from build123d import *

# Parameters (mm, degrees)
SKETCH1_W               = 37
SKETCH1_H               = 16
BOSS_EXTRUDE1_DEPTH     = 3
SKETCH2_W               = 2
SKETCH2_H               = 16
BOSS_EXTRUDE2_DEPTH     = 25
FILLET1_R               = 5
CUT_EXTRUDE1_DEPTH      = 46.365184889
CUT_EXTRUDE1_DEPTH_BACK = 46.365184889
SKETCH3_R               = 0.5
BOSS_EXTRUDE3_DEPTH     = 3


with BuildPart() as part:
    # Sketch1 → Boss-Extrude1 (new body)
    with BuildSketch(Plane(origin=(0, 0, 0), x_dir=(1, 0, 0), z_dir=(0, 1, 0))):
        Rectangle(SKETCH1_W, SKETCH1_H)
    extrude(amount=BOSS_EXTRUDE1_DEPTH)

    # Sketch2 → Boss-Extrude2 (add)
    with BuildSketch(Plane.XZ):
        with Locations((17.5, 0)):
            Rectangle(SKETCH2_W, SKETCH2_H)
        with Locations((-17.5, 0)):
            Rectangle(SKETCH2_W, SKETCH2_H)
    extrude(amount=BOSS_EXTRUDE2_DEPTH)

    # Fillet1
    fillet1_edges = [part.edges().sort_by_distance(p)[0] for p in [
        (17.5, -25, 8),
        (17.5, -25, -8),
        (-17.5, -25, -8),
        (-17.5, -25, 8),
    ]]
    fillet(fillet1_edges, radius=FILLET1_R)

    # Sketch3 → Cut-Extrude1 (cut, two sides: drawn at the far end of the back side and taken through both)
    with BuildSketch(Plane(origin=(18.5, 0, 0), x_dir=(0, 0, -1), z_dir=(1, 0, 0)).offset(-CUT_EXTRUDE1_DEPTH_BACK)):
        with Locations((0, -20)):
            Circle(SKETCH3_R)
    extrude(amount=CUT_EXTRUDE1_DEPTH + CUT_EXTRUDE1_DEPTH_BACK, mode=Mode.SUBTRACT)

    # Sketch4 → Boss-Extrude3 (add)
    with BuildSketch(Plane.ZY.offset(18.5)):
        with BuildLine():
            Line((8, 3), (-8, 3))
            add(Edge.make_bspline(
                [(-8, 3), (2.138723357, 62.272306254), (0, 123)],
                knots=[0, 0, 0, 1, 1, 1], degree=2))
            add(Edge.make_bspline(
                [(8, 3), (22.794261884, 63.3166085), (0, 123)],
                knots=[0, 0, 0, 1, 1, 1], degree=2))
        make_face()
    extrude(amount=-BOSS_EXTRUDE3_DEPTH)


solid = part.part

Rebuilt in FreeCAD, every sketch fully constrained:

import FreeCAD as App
import Part
import Sketcher
from FreeCAD import Vector
Q = App.Units.Quantity


def edges_at(feature, points):
    """Names of the edges that pass closest to the given points."""
    edges = feature.Shape.Edges
    near = lambda p: min(range(len(edges)), key=lambda i: edges[i].distToShape(Part.Vertex(*p))[0])
    return sorted({f"Edge{near(p) + 1}" for p in points})

doc = App.newDocument("Part")
params = doc.addObject("Spreadsheet::Sheet", "Params")
for row, (alias, value) in enumerate([
    ("sketch1_width", "37 mm"),
    ("sketch1_height", "16 mm"),
    ("pad1_length", "3 mm"),
    ("sketch2_width", "2 mm"),
    ("sketch2_height", "16 mm"),
    ("pad2_length", "25 mm"),
    ("fillet_radius", "5 mm"),
    ("sketch3_diameter", "1 mm"),
    ("pad3_length", "3 mm"),
], start=1):
    params.set(f"A{row}", alias)
    params.set(f"B{row}", "=" + value)
    params.setAlias(f"B{row}", alias)

body = doc.addObject("PartDesign::Body", "Body")

sketch1 = body.newObject("Sketcher::SketchObject", "Sketch")
sketch1.AttachmentSupport = (doc.getObject("XZ_Plane"), [""])
sketch1.MapMode = "FlatFace"
sketch1.addGeometry(Part.LineSegment(Vector(-18, -8, 0), Vector(-18, 8, 0)), False)
sketch1.addGeometry(Part.LineSegment(Vector(-18, 8, 0), Vector(18, 8, 0)), False)
sketch1.addGeometry(Part.LineSegment(Vector(18, 8, 0), Vector(18, -8, 0)), False)
sketch1.addGeometry(Part.LineSegment(Vector(18, -8, 0), Vector(-18, -8, 0)), False)
sketch1.addConstraint(Sketcher.Constraint("Coincident", 0, 2, 1, 1))
sketch1.addConstraint(Sketcher.Constraint("Coincident", 1, 2, 2, 1))
sketch1.addConstraint(Sketcher.Constraint("Coincident", 2, 2, 3, 1))
sketch1.addConstraint(Sketcher.Constraint("Coincident", 3, 2, 0, 1))
sketch1.addConstraint(Sketcher.Constraint("Vertical", 0))
sketch1.addConstraint(Sketcher.Constraint("Horizontal", 1))
sketch1.addConstraint(Sketcher.Constraint("Vertical", 2))
sketch1.addConstraint(Sketcher.Constraint("Horizontal", 3))
sketch1.addConstraint(Sketcher.Constraint("Symmetric", 0, 2, 2, 2, -1, 1))
sketch1.addConstraint(Sketcher.Constraint("DistanceX", 1, 1, 1, 2, Q("37 mm")))
sketch1.addConstraint(Sketcher.Constraint("DistanceY", 0, 1, 0, 2, Q("16 mm")))
sketch1.setExpression("Constraints[9]", "Params.sketch1_width")
sketch1.setExpression("Constraints[10]", "Params.sketch1_height")
pad1 = body.newObject("PartDesign::Pad", "Pad")
pad1.Profile = sketch1
pad1.setExpression("Length", "Params.pad1_length")
pad1.Reversed = True

sketch2 = body.newObject("Sketcher::SketchObject", "Sketch001")
sketch2.AttachmentSupport = (doc.getObject("XZ_Plane"), [""])
sketch2.MapMode = "FlatFace"
sketch2.addGeometry(Part.LineSegment(Vector(16.5, 8, 0), Vector(16.5, -8, 0)), False)
sketch2.addGeometry(Part.LineSegment(Vector(16.5, -8, 0), Vector(18.5, -8, 0)), False)
sketch2.addGeometry(Part.LineSegment(Vector(18.5, -8, 0), Vector(18.5, 8, 0)), False)
sketch2.addGeometry(Part.LineSegment(Vector(18.5, 8, 0), Vector(16.5, 8, 0)), False)
sketch2.addGeometry(Part.LineSegment(Vector(-18.5, 8, 0), Vector(-18.5, -8, 0)), False)
sketch2.addGeometry(Part.LineSegment(Vector(-18.5, -8, 0), Vector(-16.5, -8, 0)), False)
sketch2.addGeometry(Part.LineSegment(Vector(-16.5, -8, 0), Vector(-16.5, 8, 0)), False)
sketch2.addGeometry(Part.LineSegment(Vector(-16.5, 8, 0), Vector(-18.5, 8, 0)), False)
sketch2.addConstraint(Sketcher.Constraint("Coincident", 0, 2, 1, 1))
sketch2.addConstraint(Sketcher.Constraint("Coincident", 1, 2, 2, 1))
sketch2.addConstraint(Sketcher.Constraint("Coincident", 2, 2, 3, 1))
sketch2.addConstraint(Sketcher.Constraint("Coincident", 3, 2, 0, 1))
sketch2.addConstraint(Sketcher.Constraint("Coincident", 4, 2, 5, 1))
sketch2.addConstraint(Sketcher.Constraint("Coincident", 5, 2, 6, 1))
sketch2.addConstraint(Sketcher.Constraint("Coincident", 6, 2, 7, 1))
sketch2.addConstraint(Sketcher.Constraint("Coincident", 7, 2, 4, 1))
sketch2.addConstraint(Sketcher.Constraint("Vertical", 0))
sketch2.addConstraint(Sketcher.Constraint("Horizontal", 1))
sketch2.addConstraint(Sketcher.Constraint("Vertical", 2))
sketch2.addConstraint(Sketcher.Constraint("Horizontal", 3))
sketch2.addConstraint(Sketcher.Constraint("Vertical", 4))
sketch2.addConstraint(Sketcher.Constraint("Horizontal", 5))
sketch2.addConstraint(Sketcher.Constraint("Vertical", 6))
sketch2.addConstraint(Sketcher.Constraint("Horizontal", 7))
sketch2.addConstraint(Sketcher.Constraint("Symmetric", 2, 2, 4, 2, -1, 1))
sketch2.addConstraint(Sketcher.Constraint("Symmetric", 0, 2, 6, 2, -1, 1))
sketch2.addConstraint(Sketcher.Constraint("Horizontal", 1, 2, 4, 2))
sketch2.addConstraint(Sketcher.Constraint("DistanceX", 1, 1, 1, 2, Q("2 mm")))
sketch2.addConstraint(Sketcher.Constraint("DistanceY", 0, 2, 0, 1, Q("16 mm")))
sketch2.addConstraint(Sketcher.Constraint("DistanceX", 4, 2, 0, 2, Q("35 mm")))
sketch2.setExpression("Constraints[19]", "Params.sketch2_width")
sketch2.setExpression("Constraints[20]", "Params.sketch2_height")
pad2 = body.newObject("PartDesign::Pad", "Pad001")
pad2.Profile = sketch2
pad2.setExpression("Length", "Params.pad2_length")
doc.recompute()

fillet = body.newObject("PartDesign::Fillet", "Fillet")
fillet.Base = (pad2, edges_at(pad2, [
    (17.5, -25, 8),
    (17.5, -25, -8),
    (-17.5, -25, -8),
    (-17.5, -25, 8),
]))
fillet.setExpression("Radius", "Params.fillet_radius")

sketch3 = body.newObject("Sketcher::SketchObject", "Sketch002")
sketch3.AttachmentSupport = (doc.getObject("YZ_Plane"), [""])
sketch3.MapMode = "FlatFace"
sketch3.AttachmentOffset = App.Placement(Vector(0, 0, 18.5), App.Rotation())
sketch3.addGeometry(Part.Circle(Vector(-20, 0, 0), Vector(0, 0, 1), 0.5), False)
sketch3.addConstraint(Sketcher.Constraint("PointOnObject", 0, 3, -1))
sketch3.addConstraint(Sketcher.Constraint("Diameter", 0, Q("1 mm")))
sketch3.addConstraint(Sketcher.Constraint("DistanceX", 0, 3, -1, 1, Q("20 mm")))
sketch3.setExpression("Constraints[1]", "Params.sketch3_diameter")
pocket1 = body.newObject("PartDesign::Pocket", "Pocket")
pocket1.Profile = sketch3
pocket1.Type = "ThroughAll"
pocket1.Midplane = True

sketch4 = body.newObject("Sketcher::SketchObject", "Sketch003")
sketch4.AttachmentSupport = (doc.getObject("YZ_Plane"), [""])
sketch4.MapMode = "FlatFace"
sketch4.AttachmentOffset = App.Placement(Vector(0, 0, -18.5), App.Rotation())
sketch4.addGeometry(Part.LineSegment(Vector(3, -8, 0), Vector(3, 8, 0)), False)
sketch4.addGeometry(Part.BSplineCurve([Vector(3, 8, 0), Vector(63.316609, 22.794262, 0), Vector(123, 0, 0)], [3, 3], [0, 1], False, 2, [1, 1, 1], False), False)
sketch4.addGeometry(Part.BSplineCurve([Vector(3, -8, 0), Vector(62.272306, 2.138723, 0), Vector(123, 0, 0)], [3, 3], [0, 1], False, 2, [1, 1, 1], False), False)
sketch4.addConstraint(Sketcher.Constraint("Block", 1))
sketch4.addConstraint(Sketcher.Constraint("Block", 2))
sketch4.addConstraint(Sketcher.Constraint("Coincident", 0, 2, 1, 1))
sketch4.addConstraint(Sketcher.Constraint("Coincident", 2, 1, 0, 1))
pad3 = body.newObject("PartDesign::Pad", "Pad002")
pad3.Profile = sketch4
pad3.setExpression("Length", "Params.pad3_length")

doc.recompute()
